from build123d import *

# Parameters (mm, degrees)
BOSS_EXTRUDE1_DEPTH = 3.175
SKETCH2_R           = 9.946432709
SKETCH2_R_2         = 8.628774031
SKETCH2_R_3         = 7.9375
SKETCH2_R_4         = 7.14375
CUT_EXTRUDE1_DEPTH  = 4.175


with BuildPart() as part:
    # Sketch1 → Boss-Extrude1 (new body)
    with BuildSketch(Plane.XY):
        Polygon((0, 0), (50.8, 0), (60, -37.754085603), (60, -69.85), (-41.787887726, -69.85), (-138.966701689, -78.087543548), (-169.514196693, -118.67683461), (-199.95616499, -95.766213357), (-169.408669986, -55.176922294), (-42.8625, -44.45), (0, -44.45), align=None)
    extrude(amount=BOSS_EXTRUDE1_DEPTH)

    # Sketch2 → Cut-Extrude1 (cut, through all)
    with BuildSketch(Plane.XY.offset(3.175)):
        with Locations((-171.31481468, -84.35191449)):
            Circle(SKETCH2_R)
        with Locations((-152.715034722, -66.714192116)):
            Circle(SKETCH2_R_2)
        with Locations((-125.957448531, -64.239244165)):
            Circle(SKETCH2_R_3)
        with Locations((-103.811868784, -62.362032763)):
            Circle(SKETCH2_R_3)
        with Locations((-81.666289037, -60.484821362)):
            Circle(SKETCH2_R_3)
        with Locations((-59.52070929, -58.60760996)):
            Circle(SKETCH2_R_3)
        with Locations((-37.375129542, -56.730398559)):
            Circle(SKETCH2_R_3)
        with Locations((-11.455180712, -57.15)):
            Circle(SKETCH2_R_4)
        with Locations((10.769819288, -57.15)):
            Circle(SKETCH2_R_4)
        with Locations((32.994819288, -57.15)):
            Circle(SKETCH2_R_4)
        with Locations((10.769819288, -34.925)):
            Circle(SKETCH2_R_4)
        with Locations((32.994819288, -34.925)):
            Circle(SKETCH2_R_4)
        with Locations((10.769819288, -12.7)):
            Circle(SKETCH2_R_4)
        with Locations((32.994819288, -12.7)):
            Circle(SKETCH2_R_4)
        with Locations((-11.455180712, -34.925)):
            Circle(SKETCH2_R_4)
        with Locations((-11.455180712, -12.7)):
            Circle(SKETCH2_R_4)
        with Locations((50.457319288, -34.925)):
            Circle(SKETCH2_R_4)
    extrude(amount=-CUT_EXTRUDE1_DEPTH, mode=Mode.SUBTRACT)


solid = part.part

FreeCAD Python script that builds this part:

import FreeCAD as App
import Part
import Sketcher
from FreeCAD import Vector
Q = App.Units.Quantity


def add_polygon(sketch, points):
    """Adds a closed chain of lines whose ends are joined by coincident constraints."""
    first, n = sketch.GeometryCount, len(points)
    for a, b in zip(points, points[1:] + points[:1]):
        sketch.addGeometry(Part.LineSegment(App.Vector(*a, 0), App.Vector(*b, 0)), False)
    for i in range(n):
        sketch.addConstraint(Sketcher.Constraint("Coincident", first + i, 2, first + (i + 1) % n, 1))

doc = App.newDocument("Part")
body = doc.addObject("PartDesign::Body", "Body")

sketch1 = body.newObject("Sketcher::SketchObject", "Sketch")
sketch1.AttachmentSupport = (doc.getObject("XY_Plane"), [""])
sketch1.MapMode = "FlatFace"
add_polygon(sketch1, [(51, 0), (0, 0), (0, -44), (-43, -44), (-169, -55), (-200, -96), (-170, -119), (-139, -78), (-42, -70), (60, -70), (60, -38)])
sketch1.addConstraint([
    Sketcher.Constraint("Horizontal", 0),
    Sketcher.Constraint("Vertical", 1),
    Sketcher.Constraint("Horizontal", 2),
    Sketcher.Constraint("Horizontal", 8),
    Sketcher.Constraint("Vertical", 9),
    Sketcher.Constraint("Coincident", 0, 2, -1, 1),
    Sketcher.Constraint("Perpendicular", 4, 5),
    Sketcher.Constraint("Perpendicular", 5, 6),
    Sketcher.Constraint("Parallel", 3, 7),
    Sketcher.Constraint("Equal", 4, 6),
    Sketcher.Constraint("DistanceX", 0, 2, 0, 1, Q("2 in")),
    Sketcher.Constraint("Distance", 3, Q("5 in")),
    Sketcher.Constraint("Distance", 4, Q("2 in")),
    Sketcher.Constraint("DistanceY", 7, 2, 2, 2, Q("1 in")),
    Sketcher.Constraint("Distance", 5, Q("1.5 in")),
    Sketcher.Constraint("DistanceY", 1, 2, 1, 1, Q("1.75 in")),
    Sketcher.Constraint("DistanceX", 2, 2, 2, 1, Q("1.6875 in")),
    Sketcher.Constraint("DistanceX", 6, 2, -1, 1, Q("138.966702 mm")),
    Sketcher.Constraint("DistanceX", -1, 1, 8, 2, Q("60 mm")),
    Sketcher.Constraint("Distance", 10, Q("38.85886 mm")),
    Sketcher.Constraint("DistanceX", 8, 1, 8, 2, Q("101.787888 mm")),
])
pad1 = body.newObject("PartDesign::Pad", "Pad")
pad1.Profile = sketch1
pad1.Length = Q("0.125 in")

sketch2 = body.newObject("Sketcher::SketchObject", "Sketch001")
sketch2.AttachmentSupport = (doc.getObject("XY_Plane"), [""])
sketch2.MapMode = "FlatFace"
sketch2.AttachmentOffset = App.Placement(Vector(0, 0, 0.125 * 25.4), App.Rotation())
sketch2.addGeometry([
    Part.Circle(Vector(-171, -84, 0), Vector(0, 0, 1), 10),
    Part.Circle(Vector(-153, -67, 0), Vector(0, 0, 1), 9),
    Part.Circle(Vector(-126, -64, 0), Vector(0, 0, 1), 8),
    Part.Circle(Vector(-104, -62, 0), Vector(0, 0, 1), 8),
    Part.Circle(Vector(-82, -60, 0), Vector(0, 0, 1), 8),
    Part.Circle(Vector(-60, -59, 0), Vector(0, 0, 1), 8),
    Part.Circle(Vector(-37, -57, 0), Vector(0, 0, 1), 8),
    Part.Circle(Vector(-11, -57, 0), Vector(0, 0, 1), 7),
    Part.Circle(Vector(11, -57, 0), Vector(0, 0, 1), 7),
    Part.Circle(Vector(33, -57, 0), Vector(0, 0, 1), 7),
    Part.Circle(Vector(11, -35, 0), Vector(0, 0, 1), 7),
    Part.Circle(Vector(33, -35, 0), Vector(0, 0, 1), 7),
    Part.Circle(Vector(11, -13, 0), Vector(0, 0, 1), 7),
    Part.Circle(Vector(33, -13, 0), Vector(0, 0, 1), 7),
    Part.Circle(Vector(-11, -35, 0), Vector(0, 0, 1), 7),
    Part.Circle(Vector(-11, -13, 0), Vector(0, 0, 1), 7),
    Part.Circle(Vector(50, -35, 0), Vector(0, 0, 1), 7),
], False)
sketch2.addConstraint([
    Sketcher.Constraint("Equal", 2, 3),
    Sketcher.Constraint("Equal", 3, 4),
    Sketcher.Constraint("Equal", 4, 5),
    Sketcher.Constraint("Equal", 5, 6),
    Sketcher.Constraint("Equal", 7, 8),
    Sketcher.Constraint("Equal", 8, 9),
    Sketcher.Constraint("Equal", 9, 10),
    Sketcher.Constraint("Equal", 10, 11),
    Sketcher.Constraint("Equal", 11, 12),
    Sketcher.Constraint("Equal", 12, 13),
    Sketcher.Constraint("Equal", 13, 14),
    Sketcher.Constraint("Equal", 14, 15),
    Sketcher.Constraint("Equal", 15, 16),
    Sketcher.Constraint("Horizontal", 7, 3, 8, 3),
    Sketcher.Constraint("Horizontal", 8, 3, 9, 3),
    Sketcher.Constraint("Horizontal", 10, 3, 11, 3),
    Sketcher.Constraint("Horizontal", 12, 3, 13, 3),
    Sketcher.Constraint("Horizontal", 11, 3, 14, 3),
    Sketcher.Constraint("Horizontal", 13, 3, 15, 3),
    Sketcher.Constraint("Horizontal", 14, 3, 16, 3),
    Sketcher.Constraint("Vertical", 8, 3, 10, 3),
    Sketcher.Constraint("Vertical", 9, 3, 11, 3),
    Sketcher.Constraint("Vertical", 10, 3, 12, 3),
    Sketcher.Constraint("Vertical", 11, 3, 13, 3),
    Sketcher.Constraint("Vertical", 7, 3, 14, 3),
    Sketcher.Constraint("Vertical", 14, 3, 15, 3),
    Sketcher.Constraint("Diameter", 2, Q("0.625 in")),
    Sketcher.Constraint("Diameter", 7, Q("0.5625 in")),
    Sketcher.Constraint("DistanceY", 12, 3, -1, 1, Q("0.5 in")),
    Sketcher.Constraint("DistanceY", 7, 3, -1, 1, Q("2.25 in")),
    Sketcher.Constraint("DistanceX", 7, 3, 9, 3, Q("1.75 in")),
    Sketcher.Constraint("Diameter", 1, Q("17.257548 mm")),
    Sketcher.Constraint("DistanceY", 10, 3, -1, 1, Q("1.375 in")),
    Sketcher.Constraint("DistanceX", 7, 3, 8, 3, Q("0.875 in")),
    Sketcher.Constraint("DistanceX", 11, 3, 16, 3, Q("0.6875 in")),
    Sketcher.Constraint("Diameter", 0, Q("19.892865 mm")),
    Sketcher.Constraint("DistanceY", 6, 3, -1, 1, Q("56.730399 mm")),
    Sketcher.Constraint("DistanceX", 2, 3, -1, 1, Q("125.957449 mm")),
    Sketcher.Constraint("DistanceX", 3, 3, -1, 1, Q("103.811869 mm")),
    Sketcher.Constraint("DistanceX", 4, 3, -1, 1, Q("81.666289 mm")),
    Sketcher.Constraint("DistanceY", 4, 3, -1, 1, Q("60.484821 mm")),
    Sketcher.Constraint("DistanceX", 5, 3, -1, 1, Q("59.520709 mm")),
    Sketcher.Constraint("DistanceY", 5, 3, -1, 1, Q("58.60761 mm")),
    Sketcher.Constraint("DistanceX", 6, 3, -1, 1, Q("37.37513 mm")),
    Sketcher.Constraint("DistanceX", 7, 3, -1, 1, Q("11.455181 mm")),
    Sketcher.Constraint("DistanceX", 0, 3, 1, 3, Q("18.59978 mm")),
    Sketcher.Constraint("DistanceY", 0, 3, 2, 3, Q("20.11267 mm")),
    Sketcher.Constraint("DistanceY", 2, 3, 3, 3, Q("1.877211 mm")),
    Sketcher.Constraint("DistanceY", 1, 3, 3, 3, Q("4.352159 mm")),
    Sketcher.Constraint("DistanceY", 3, 3, 4, 3, Q("1.877211 mm")),
    Sketcher.Constraint("DistanceX", 0, 3, -1, 1, Q("171.314815 mm")),
])
pocket1 = body.newObject("PartDesign::Pocket", "Pocket")
pocket1.Profile = sketch2
pocket1.Type = "ThroughAll"

doc.recompute()
